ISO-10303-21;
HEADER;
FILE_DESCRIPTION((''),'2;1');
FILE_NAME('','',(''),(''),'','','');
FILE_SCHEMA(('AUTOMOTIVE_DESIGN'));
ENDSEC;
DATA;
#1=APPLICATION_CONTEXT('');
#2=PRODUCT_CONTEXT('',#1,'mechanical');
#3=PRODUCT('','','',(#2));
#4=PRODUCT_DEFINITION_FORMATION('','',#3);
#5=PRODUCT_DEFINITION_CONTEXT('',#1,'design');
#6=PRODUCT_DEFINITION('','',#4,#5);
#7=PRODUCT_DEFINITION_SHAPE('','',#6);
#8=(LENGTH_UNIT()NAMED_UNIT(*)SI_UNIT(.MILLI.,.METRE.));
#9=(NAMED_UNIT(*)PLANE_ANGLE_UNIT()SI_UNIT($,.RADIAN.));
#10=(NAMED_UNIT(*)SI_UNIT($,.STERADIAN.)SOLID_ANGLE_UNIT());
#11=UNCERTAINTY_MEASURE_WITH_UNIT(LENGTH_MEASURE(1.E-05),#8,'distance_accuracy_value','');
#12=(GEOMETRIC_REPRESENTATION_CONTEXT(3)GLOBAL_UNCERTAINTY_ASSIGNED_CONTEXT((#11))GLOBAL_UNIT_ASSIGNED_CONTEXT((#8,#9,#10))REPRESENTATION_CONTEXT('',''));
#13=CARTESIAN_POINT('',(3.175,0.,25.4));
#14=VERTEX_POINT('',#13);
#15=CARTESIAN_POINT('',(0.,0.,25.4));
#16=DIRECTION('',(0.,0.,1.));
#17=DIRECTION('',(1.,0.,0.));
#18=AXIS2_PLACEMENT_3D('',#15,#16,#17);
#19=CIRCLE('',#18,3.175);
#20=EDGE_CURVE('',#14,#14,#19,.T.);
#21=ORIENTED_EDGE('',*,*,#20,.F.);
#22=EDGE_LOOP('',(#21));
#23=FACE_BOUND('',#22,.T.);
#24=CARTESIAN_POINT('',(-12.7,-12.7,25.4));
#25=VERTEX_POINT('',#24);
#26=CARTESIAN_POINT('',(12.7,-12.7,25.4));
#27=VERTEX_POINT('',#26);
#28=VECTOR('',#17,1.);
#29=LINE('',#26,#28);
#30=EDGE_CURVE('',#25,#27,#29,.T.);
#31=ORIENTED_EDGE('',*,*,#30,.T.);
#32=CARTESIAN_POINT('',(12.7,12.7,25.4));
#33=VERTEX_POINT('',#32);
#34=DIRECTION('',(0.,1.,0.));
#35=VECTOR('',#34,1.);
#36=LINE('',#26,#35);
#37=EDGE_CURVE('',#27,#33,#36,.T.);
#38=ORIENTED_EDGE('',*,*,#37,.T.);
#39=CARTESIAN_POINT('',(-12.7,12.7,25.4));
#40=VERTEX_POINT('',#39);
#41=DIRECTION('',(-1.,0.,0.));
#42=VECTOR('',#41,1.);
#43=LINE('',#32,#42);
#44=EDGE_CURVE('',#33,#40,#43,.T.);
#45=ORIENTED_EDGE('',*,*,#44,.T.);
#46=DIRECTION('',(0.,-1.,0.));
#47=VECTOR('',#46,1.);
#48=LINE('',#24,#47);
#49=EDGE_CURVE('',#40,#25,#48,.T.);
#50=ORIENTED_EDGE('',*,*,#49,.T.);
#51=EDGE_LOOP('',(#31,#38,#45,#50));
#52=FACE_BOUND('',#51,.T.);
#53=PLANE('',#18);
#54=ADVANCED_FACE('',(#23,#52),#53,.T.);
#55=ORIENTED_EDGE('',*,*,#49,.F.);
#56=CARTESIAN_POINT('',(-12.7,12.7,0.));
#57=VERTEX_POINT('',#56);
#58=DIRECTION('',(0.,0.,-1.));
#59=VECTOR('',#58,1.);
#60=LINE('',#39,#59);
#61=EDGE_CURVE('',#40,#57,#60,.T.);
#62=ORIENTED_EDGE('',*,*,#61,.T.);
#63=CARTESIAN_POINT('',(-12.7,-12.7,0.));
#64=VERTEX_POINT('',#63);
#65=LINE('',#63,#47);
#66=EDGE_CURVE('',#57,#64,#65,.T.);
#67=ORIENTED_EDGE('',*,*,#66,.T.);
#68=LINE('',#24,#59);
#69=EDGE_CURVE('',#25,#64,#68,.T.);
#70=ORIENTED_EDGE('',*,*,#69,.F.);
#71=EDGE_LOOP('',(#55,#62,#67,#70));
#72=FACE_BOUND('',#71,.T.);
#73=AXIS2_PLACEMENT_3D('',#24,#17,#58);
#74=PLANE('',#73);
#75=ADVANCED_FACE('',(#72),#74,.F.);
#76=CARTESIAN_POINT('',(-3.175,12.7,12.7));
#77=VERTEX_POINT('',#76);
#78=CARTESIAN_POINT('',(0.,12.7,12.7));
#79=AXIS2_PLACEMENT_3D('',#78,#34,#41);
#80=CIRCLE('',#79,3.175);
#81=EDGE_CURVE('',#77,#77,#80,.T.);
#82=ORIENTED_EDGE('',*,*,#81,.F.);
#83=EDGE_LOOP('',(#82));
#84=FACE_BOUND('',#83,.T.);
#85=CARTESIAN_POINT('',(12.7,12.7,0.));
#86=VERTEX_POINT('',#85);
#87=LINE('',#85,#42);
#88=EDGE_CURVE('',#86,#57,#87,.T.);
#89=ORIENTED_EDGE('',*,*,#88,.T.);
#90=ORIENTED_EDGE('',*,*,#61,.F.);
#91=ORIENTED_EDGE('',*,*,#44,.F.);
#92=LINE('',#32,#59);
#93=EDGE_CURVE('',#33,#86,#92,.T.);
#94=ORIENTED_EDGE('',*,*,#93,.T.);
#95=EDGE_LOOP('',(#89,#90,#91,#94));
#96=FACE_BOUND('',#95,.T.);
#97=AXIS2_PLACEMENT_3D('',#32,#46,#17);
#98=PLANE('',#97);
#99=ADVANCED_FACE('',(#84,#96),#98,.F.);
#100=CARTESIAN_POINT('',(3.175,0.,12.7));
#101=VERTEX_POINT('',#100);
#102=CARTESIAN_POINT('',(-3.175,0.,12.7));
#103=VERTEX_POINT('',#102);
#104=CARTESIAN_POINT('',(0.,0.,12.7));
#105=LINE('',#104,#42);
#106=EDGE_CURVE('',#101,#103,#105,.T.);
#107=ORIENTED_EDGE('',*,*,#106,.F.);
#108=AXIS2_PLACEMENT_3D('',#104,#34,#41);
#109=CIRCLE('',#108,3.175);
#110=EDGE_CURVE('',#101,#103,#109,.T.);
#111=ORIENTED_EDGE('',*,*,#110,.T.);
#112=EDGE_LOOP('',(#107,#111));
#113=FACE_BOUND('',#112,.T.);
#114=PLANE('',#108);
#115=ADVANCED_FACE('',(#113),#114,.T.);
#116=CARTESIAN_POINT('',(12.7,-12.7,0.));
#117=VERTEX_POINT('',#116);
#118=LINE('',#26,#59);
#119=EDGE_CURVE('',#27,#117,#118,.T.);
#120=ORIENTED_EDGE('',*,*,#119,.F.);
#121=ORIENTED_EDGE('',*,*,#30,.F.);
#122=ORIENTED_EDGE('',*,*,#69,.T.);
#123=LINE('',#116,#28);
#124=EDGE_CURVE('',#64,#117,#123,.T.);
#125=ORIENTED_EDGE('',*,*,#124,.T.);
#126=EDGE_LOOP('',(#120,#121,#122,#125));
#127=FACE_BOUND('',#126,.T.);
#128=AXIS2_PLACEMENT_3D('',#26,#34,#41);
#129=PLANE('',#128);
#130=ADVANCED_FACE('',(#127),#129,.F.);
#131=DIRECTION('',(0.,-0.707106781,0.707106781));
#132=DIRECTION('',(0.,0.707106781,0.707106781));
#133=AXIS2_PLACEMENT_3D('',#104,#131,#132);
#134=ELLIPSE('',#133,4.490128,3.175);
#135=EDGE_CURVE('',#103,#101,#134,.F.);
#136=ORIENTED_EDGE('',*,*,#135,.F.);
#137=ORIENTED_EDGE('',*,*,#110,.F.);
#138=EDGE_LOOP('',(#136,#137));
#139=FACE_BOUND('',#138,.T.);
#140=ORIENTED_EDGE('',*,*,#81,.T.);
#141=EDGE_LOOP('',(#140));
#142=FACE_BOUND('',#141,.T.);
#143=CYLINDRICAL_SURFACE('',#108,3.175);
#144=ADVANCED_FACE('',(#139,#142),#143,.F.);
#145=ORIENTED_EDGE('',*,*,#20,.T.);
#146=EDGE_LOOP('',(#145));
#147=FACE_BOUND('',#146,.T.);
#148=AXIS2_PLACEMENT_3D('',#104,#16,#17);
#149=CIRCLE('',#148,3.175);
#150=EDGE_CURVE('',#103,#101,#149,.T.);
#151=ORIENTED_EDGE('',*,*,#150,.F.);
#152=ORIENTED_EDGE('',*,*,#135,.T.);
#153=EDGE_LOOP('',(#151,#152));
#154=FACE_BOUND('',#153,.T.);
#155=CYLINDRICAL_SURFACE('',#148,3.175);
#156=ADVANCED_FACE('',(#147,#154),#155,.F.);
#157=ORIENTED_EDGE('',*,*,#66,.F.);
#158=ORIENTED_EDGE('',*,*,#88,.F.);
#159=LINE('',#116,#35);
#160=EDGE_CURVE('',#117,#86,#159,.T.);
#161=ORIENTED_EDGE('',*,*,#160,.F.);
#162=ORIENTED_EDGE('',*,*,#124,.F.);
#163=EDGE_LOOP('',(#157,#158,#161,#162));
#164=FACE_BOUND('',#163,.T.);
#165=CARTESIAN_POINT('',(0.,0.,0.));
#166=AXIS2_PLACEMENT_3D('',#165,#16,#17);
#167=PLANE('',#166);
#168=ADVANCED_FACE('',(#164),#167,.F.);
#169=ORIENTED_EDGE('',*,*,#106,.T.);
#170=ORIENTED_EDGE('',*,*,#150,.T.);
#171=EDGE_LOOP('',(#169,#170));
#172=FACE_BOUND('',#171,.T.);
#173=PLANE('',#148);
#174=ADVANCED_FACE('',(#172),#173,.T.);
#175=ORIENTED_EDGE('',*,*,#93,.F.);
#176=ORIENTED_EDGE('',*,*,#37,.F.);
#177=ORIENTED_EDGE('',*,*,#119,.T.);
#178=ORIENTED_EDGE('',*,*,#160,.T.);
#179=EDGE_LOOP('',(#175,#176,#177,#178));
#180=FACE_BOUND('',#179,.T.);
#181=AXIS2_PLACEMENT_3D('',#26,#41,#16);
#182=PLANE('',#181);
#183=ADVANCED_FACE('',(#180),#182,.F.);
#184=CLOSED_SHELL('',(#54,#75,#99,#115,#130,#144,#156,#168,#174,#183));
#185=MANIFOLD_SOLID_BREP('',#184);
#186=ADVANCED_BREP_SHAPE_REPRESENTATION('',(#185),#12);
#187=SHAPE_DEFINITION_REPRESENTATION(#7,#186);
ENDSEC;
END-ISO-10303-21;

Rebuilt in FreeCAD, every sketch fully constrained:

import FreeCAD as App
import Part
import Sketcher
Q = App.Units.Quantity


def add_polygon(sketch, points):
    """Adds a closed chain of lines whose ends are joined by coincident constraints."""
    first, n = sketch.GeometryCount, len(points)
    for a, b in zip(points, points[1:] + points[:1]):
        sketch.addGeometry(Part.LineSegment(App.Vector(*a, 0), App.Vector(*b, 0)), False)
    for i in range(n):
        sketch.addConstraint(Sketcher.Constraint("Coincident", first + i, 2, first + (i + 1) % n, 1))

doc = App.newDocument("Part")
params = doc.addObject("Spreadsheet::Sheet", "Params")
for row, (alias, value) in enumerate([
    ("sketch1_width", "1 in"),
    ("pad1_length", "1 in"),
    ("sketch2_diameter", "0.25 in"),
    ("pocket1_length", "0.5 in"),
    ("sketch3_diameter", "0.25 in"),
    ("pocket2_length", "0.5 in"),
], start=1):
    params.set(f"A{row}", alias)
    params.set(f"B{row}", "=" + value)
    params.setAlias(f"B{row}", alias)

body = doc.addObject("PartDesign::Body", "Body")

sketch1 = doc.addObject("Sketcher::SketchObject", "Sketch")
body.addObject(sketch1)
sketch1.AttachmentSupport = (doc.XY_Plane, [""])
sketch1.MapMode = "FlatFace"
add_polygon(sketch1, [(-13, 13), (-13, -13), (13, -13), (13, 13)])
sketch1.addConstraint([
    Sketcher.Constraint("Vertical", 0),
    Sketcher.Constraint("Horizontal", 1),
    Sketcher.Constraint("Vertical", 2),
    Sketcher.Constraint("Horizontal", 3),
    Sketcher.Constraint("Symmetric", 0, 2, 2, 2, -1, 1),
    Sketcher.Constraint("Equal", 3, 0),
    Sketcher.Constraint("DistanceX", 1, 1, 1, 2, Q("1 in")),
])
sketch1.setExpression("Constraints[10]", "Params.sketch1_width")
pad1 = doc.addObject("PartDesign::Pad", "Pad")
body.addObject(pad1)
pad1.Profile = sketch1
pad1.setExpression("Length", "Params.pad1_length")

sketch2 = doc.addObject("Sketcher::SketchObject", "Sketch001")
body.addObject(sketch2)
sketch2.AttachmentSupport = (doc.XY_Plane, [""])
sketch2.MapMode = "FlatFace"
sketch2.AttachmentOffset = App.Placement(App.Vector(0, 0, 1 * 25.4), App.Rotation())
sketch2.addGeometry(Part.Circle(App.Vector(0, 0, 0), App.Vector(0, 0, 1), 3.2), False)
sketch2.addConstraint([
    Sketcher.Constraint("Coincident", 0, 3, -1, 1),
    Sketcher.Constraint("Diameter", 0, Q("0.25 in")),
])
sketch2.setExpression("Constraints[1]", "Params.sketch2_diameter")
pocket1 = doc.addObject("PartDesign::Pocket", "Pocket")
body.addObject(pocket1)
pocket1.Profile = sketch2
pocket1.setExpression("Length", "Params.pocket1_length")

sketch3 = doc.addObject("Sketcher::SketchObject", "Sketch002")
body.addObject(sketch3)
sketch3.AttachmentSupport = (doc.XZ_Plane, [""])
sketch3.MapMode = "FlatFace"
sketch3.AttachmentOffset = App.Placement(App.Vector(0, 0, -0.5 * 25.4), App.Rotation())
sketch3.addGeometry(Part.Circle(App.Vector(0, 12.7, 0), App.Vector(0, 0, 1), 3.2), False)
sketch3.addConstraint([
    Sketcher.Constraint("PointOnObject", 0, 3, -2),
    Sketcher.Constraint("Diameter", 0, Q("0.25 in")),
    Sketcher.Constraint("DistanceY", -1, 1, 0, 3, Q("0.5 in")),
])
sketch3.setExpression("Constraints[1]", "Params.sketch3_diameter")
pocket2 = doc.addObject("PartDesign::Pocket", "Pocket001")
body.addObject(pocket2)
pocket2.Profile = sketch3
pocket2.setExpression("Length", "Params.pocket2_length")
pocket2.Reversed = True

doc.recompute()
